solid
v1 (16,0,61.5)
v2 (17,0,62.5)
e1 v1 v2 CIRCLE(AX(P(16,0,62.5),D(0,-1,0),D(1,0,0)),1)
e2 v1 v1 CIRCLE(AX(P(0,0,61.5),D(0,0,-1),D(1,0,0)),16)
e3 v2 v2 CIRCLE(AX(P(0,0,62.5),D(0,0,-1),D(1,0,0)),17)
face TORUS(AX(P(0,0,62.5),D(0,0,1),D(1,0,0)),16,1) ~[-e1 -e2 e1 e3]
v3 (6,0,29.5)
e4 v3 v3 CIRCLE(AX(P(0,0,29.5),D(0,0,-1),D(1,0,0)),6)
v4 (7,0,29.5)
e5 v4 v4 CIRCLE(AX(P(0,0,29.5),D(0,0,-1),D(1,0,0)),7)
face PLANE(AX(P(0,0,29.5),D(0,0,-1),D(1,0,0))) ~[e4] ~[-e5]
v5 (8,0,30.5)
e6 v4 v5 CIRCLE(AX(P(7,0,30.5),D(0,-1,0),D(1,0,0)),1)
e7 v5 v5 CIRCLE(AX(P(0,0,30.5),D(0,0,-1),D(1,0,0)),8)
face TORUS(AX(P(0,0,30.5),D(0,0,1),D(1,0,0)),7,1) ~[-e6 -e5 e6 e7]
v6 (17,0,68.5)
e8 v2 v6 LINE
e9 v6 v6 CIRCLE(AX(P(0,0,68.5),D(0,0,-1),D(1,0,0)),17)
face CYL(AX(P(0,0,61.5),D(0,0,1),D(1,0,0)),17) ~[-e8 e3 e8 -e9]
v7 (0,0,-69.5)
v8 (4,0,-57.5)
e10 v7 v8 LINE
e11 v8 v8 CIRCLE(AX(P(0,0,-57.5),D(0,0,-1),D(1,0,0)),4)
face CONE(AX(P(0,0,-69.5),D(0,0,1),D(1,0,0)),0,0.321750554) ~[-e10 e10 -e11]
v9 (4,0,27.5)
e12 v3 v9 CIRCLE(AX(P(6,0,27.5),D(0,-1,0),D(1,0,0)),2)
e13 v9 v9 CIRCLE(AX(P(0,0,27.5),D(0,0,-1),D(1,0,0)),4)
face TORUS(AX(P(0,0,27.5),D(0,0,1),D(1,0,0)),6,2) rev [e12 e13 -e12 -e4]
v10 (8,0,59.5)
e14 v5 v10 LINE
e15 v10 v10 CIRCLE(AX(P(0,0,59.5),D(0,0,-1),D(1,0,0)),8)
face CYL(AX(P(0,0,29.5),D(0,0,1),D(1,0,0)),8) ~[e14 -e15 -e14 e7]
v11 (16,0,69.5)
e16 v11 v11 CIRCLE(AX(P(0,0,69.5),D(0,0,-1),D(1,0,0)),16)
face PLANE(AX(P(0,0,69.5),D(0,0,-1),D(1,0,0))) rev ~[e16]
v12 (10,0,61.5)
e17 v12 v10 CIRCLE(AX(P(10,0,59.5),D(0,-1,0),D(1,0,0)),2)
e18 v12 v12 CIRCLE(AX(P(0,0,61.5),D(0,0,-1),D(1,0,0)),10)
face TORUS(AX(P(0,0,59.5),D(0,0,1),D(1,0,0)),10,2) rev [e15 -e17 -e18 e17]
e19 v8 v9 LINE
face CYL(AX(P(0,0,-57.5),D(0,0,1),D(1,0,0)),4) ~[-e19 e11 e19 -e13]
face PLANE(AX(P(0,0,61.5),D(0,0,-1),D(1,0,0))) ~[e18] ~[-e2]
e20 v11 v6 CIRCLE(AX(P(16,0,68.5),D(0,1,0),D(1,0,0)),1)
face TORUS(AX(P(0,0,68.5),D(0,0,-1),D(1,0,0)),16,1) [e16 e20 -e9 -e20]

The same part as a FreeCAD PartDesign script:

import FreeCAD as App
import Part
import Sketcher

V = App.Vector


def edges_at(feature, points):
    """Names of the edges that pass closest to the given points."""
    edges = feature.Shape.Edges
    near = lambda p: min(range(len(edges)), key=lambda i: edges[i].distToShape(Part.Vertex(*p))[0])
    return sorted({f"Edge{near(p) + 1}" for p in points})


def add_polygon(sketch, points):
    """Adds a closed chain of lines whose ends are joined by coincident constraints."""
    first, n = sketch.GeometryCount, len(points)
    for a, b in zip(points, points[1:] + points[:1]):
        sketch.addGeometry(Part.LineSegment(App.Vector(*a, 0), App.Vector(*b, 0)), False)
    for i in range(n):
        sketch.addConstraint(Sketcher.Constraint("Coincident", first + i, 2, first + (i + 1) % n, 1))

doc = App.newDocument("Part")
body = doc.addObject("PartDesign::Body", "Body")

# Sketch on XZ plane
sketch1 = body.newObject("Sketcher::SketchObject", "Sketch")
sketch1.AttachmentSupport = (doc.getObject("XZ_Plane"), [""])
sketch1.MapMode = "FlatFace"
add_polygon(sketch1, [(17, 69.5), (0, 69.5), (0, -69.5), (4, -57.5), (4, 29.5), (8, 29.5), (8, 61.5), (17, 61.5)])  # lines 0-7
sketch1.addConstraint(Sketcher.Constraint("Horizontal", 0))
sketch1.addConstraint(Sketcher.Constraint("Vertical", 1))
sketch1.addConstraint(Sketcher.Constraint("Vertical", 3))
sketch1.addConstraint(Sketcher.Constraint("Horizontal", 4))
sketch1.addConstraint(Sketcher.Constraint("Vertical", 5))
sketch1.addConstraint(Sketcher.Constraint("Horizontal", 6))
sketch1.addConstraint(Sketcher.Constraint("Vertical", 7))
sketch1.addConstraint(Sketcher.Constraint("Symmetric", 0, 2, 1, 2, -1, 1))
sketch1.addConstraint(Sketcher.Constraint("DistanceX", 0, 2, 0, 1, 17.0))
sketch1.addConstraint(Sketcher.Constraint("DistanceX", 4, 1, 4, 2, 4.0))
sketch1.addConstraint(Sketcher.Constraint("DistanceX", 6, 1, 6, 2, 9.0))
sketch1.addConstraint(Sketcher.Constraint("DistanceY", 1, 2, 1, 1, 139.0))
sketch1.addConstraint(Sketcher.Constraint("DistanceY", 3, 1, 3, 2, 87.0))
sketch1.addConstraint(Sketcher.Constraint("DistanceY", 5, 1, 5, 2, 32.0))
sketch1.addConstraint(Sketcher.Constraint("DistanceY", 7, 1, 7, 2, 8.0))
revolution = body.newObject("PartDesign::Revolution", "Revolution")
revolution.Profile = sketch1
revolution.ReferenceAxis = (sketch1, ["V_Axis"])
revolution.Angle = 360
doc.recompute()

fillet = body.newObject("PartDesign::Fillet", "Fillet")
fillet.Base = (revolution, edges_at(revolution, [(-17, 0, 69.5), (-17, 0, 61.5), (-8, 0, 29.5)]))
fillet.Radius = 1
doc.recompute()

fillet2 = body.newObject("PartDesign::Fillet", "Fillet001")
fillet2.Base = (fillet, edges_at(fillet, [(-8, 0, 61.5), (-4, 0, 29.5)]))
fillet2.Radius = 2

doc.recompute()
